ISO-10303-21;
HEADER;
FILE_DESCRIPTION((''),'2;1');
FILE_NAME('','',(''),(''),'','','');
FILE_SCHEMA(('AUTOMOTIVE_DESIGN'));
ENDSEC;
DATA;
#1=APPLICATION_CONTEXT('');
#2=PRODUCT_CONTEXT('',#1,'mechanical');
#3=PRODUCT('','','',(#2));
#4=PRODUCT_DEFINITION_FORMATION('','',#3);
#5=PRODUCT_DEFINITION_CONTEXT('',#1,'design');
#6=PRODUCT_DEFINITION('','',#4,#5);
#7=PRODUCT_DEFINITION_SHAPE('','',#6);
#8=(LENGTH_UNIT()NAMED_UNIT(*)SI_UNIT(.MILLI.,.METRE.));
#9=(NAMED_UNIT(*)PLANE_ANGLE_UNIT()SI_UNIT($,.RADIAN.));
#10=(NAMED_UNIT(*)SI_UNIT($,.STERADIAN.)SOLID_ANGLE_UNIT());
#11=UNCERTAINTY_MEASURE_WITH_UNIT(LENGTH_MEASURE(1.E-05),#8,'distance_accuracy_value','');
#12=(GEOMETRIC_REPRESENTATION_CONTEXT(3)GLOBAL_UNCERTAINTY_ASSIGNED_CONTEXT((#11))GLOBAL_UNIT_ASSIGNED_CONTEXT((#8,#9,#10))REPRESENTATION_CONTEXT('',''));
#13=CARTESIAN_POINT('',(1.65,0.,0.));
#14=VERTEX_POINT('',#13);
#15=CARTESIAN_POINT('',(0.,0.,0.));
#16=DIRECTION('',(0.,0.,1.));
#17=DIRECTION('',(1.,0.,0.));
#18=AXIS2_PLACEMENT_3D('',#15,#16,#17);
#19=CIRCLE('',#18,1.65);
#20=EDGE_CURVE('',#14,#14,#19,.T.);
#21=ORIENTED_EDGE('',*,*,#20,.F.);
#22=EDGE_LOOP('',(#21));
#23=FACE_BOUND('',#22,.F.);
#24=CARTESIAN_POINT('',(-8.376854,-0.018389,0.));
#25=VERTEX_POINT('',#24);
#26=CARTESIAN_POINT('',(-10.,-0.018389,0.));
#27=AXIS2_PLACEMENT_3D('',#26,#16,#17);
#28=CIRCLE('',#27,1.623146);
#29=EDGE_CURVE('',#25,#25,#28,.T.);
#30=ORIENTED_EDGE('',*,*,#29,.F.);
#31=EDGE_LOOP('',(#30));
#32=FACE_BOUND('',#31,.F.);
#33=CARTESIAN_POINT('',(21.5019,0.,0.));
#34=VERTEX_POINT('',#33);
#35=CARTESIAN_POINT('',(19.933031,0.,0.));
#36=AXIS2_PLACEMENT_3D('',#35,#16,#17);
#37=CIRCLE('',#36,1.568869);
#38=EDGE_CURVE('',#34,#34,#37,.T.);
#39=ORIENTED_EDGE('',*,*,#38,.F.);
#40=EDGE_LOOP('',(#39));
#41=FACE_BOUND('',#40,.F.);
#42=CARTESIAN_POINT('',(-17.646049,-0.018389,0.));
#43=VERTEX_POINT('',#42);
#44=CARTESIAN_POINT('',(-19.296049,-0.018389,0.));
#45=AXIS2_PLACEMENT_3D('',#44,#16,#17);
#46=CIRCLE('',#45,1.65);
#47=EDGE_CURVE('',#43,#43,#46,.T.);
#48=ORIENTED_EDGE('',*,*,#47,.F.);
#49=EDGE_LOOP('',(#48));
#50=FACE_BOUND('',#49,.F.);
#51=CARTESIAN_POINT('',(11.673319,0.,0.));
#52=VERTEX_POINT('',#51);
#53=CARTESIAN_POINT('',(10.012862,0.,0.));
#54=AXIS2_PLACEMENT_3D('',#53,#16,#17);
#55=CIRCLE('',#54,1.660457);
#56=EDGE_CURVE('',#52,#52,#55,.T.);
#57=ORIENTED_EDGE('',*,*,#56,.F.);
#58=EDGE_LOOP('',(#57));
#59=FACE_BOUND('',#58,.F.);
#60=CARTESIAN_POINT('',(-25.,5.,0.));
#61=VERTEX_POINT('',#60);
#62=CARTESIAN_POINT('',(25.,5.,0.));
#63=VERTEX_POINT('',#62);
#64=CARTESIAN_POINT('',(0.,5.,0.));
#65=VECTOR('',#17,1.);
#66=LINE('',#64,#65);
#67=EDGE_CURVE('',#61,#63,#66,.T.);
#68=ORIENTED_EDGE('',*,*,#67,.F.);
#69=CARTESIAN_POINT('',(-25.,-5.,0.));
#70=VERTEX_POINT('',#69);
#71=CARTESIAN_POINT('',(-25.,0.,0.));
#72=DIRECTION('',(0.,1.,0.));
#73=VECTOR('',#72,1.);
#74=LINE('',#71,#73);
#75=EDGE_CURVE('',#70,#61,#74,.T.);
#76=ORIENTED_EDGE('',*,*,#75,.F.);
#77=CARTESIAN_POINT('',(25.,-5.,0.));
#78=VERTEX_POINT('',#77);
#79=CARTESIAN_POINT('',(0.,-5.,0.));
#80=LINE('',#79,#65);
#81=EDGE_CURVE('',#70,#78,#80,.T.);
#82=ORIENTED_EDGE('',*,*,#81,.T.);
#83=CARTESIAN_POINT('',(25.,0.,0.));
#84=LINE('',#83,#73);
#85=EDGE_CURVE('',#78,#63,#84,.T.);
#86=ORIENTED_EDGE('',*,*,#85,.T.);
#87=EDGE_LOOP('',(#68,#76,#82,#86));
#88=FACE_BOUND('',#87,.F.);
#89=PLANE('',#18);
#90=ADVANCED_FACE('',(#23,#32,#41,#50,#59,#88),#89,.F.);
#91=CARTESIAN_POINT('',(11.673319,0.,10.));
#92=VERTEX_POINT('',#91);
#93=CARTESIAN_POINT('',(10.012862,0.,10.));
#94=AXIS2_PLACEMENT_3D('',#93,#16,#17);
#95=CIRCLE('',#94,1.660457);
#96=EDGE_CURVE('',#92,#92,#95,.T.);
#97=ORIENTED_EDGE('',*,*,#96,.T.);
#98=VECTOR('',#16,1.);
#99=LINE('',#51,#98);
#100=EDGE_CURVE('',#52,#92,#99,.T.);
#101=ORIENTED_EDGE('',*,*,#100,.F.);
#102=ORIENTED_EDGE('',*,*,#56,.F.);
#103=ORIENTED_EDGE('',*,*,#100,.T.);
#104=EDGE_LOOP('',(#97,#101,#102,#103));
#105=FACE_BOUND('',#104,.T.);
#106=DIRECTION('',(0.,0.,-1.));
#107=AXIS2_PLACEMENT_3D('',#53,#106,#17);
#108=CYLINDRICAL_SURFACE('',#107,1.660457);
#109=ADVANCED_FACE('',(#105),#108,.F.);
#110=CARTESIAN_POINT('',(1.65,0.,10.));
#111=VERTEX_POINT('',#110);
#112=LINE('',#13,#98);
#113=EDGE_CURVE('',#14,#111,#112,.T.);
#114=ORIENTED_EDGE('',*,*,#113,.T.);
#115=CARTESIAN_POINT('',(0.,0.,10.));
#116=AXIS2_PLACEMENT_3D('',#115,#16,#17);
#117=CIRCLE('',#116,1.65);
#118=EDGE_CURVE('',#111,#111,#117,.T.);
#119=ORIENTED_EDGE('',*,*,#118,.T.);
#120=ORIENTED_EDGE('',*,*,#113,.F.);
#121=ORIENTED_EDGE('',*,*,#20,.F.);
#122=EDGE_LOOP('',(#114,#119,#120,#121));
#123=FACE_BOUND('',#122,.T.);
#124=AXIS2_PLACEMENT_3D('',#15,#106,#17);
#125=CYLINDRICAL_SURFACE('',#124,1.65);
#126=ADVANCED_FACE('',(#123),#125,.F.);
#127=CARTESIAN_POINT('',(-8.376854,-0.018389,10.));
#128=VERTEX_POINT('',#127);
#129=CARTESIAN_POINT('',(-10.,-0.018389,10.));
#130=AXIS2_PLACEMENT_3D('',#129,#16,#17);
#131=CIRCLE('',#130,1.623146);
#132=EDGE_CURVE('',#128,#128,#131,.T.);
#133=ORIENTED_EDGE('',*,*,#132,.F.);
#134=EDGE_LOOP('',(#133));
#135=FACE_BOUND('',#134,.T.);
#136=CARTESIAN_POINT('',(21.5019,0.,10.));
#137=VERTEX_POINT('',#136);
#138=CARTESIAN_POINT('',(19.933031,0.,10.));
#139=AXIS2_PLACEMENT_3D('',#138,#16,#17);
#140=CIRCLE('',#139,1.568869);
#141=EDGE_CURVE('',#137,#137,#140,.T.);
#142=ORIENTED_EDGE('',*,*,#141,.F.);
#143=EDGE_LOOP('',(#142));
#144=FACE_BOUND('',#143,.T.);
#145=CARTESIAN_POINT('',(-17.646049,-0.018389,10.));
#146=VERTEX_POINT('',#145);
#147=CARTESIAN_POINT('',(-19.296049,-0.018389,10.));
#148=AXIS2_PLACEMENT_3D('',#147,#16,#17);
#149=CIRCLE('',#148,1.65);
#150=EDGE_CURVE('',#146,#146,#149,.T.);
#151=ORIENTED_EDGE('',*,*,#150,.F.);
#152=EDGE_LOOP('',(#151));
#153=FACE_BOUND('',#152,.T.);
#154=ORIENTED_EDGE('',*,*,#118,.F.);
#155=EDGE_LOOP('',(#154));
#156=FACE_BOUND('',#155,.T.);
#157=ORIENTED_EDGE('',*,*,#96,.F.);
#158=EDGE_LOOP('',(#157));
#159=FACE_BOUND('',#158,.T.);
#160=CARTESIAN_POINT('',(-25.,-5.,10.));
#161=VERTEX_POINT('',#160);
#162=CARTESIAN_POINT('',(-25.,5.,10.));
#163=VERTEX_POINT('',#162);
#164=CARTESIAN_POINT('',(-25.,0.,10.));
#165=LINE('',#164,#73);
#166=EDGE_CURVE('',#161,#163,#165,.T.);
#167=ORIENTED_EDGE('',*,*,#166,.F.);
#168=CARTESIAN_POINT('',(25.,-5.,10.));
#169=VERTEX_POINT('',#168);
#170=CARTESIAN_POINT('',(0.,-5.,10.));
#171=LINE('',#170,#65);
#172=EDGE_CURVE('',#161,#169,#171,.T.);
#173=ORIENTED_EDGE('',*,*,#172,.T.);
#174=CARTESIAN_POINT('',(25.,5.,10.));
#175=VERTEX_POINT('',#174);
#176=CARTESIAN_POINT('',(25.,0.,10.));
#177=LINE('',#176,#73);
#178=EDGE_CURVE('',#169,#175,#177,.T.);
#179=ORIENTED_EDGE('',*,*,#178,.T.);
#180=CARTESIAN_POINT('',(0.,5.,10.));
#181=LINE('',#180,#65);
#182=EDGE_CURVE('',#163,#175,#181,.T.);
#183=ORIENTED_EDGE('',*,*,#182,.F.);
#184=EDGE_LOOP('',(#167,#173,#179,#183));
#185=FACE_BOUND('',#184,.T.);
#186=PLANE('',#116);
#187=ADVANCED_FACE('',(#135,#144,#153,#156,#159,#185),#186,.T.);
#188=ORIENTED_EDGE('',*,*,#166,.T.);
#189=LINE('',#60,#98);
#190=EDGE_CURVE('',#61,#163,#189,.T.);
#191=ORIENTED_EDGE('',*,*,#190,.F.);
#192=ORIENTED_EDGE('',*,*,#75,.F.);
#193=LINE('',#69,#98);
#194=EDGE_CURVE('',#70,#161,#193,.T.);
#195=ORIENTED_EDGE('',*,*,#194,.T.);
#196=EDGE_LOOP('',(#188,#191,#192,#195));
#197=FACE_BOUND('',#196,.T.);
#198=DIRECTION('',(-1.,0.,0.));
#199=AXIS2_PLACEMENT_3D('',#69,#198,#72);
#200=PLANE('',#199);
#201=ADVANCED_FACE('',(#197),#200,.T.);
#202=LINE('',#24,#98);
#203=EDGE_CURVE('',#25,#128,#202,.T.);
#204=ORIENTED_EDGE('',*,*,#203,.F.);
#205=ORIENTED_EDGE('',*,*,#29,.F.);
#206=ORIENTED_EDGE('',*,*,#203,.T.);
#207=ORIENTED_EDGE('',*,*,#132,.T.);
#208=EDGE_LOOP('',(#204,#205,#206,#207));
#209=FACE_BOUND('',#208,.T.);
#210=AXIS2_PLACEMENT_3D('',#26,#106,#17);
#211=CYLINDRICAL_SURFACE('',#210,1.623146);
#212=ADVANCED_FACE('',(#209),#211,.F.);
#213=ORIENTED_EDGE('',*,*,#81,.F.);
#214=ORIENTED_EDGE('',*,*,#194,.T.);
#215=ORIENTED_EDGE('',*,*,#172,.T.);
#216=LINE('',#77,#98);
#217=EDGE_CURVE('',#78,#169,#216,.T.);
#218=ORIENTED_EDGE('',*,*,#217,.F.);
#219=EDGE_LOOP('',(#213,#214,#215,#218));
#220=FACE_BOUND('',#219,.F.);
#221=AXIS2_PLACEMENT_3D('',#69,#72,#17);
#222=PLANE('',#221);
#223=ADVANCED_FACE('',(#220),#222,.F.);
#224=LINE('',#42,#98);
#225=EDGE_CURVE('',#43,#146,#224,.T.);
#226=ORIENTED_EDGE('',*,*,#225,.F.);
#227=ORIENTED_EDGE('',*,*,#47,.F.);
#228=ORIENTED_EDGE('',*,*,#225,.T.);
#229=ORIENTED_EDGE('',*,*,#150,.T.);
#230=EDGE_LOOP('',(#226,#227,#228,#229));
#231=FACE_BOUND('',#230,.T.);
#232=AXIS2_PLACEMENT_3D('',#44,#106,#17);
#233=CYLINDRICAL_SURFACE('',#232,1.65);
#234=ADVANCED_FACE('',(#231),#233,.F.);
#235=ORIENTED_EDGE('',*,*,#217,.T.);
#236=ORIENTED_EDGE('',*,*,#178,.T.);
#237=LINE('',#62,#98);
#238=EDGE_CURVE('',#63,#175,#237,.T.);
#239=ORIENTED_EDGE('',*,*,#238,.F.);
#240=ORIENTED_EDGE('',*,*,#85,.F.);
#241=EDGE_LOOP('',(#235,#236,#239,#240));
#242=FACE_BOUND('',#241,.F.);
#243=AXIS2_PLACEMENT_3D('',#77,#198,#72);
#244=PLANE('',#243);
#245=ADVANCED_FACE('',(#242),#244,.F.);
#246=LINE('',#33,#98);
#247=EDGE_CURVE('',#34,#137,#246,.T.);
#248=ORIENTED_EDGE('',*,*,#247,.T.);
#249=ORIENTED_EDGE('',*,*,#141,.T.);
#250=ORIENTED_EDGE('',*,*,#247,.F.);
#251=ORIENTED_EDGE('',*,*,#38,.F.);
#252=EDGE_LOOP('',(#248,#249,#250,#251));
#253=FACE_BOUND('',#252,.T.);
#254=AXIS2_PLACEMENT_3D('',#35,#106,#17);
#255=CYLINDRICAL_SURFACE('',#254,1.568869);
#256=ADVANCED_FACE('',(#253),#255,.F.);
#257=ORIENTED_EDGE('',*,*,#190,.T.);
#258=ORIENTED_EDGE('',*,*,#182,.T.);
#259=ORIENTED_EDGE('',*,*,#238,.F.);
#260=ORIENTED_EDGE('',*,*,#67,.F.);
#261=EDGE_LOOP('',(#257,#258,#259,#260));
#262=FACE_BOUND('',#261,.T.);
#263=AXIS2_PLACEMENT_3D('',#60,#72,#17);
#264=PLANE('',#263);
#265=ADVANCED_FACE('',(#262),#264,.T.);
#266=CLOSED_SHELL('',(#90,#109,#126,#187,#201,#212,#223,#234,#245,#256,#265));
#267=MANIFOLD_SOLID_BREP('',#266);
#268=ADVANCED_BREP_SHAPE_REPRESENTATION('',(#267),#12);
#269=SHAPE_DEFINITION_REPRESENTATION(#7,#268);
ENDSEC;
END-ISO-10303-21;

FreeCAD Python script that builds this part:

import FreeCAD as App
import Part
import Sketcher
from FreeCAD import Vector

doc = App.newDocument("Part")
body = doc.addObject("PartDesign::Body", "Body")

sketch1 = body.newObject("Sketcher::SketchObject", "Sketch")
sketch1.AttachmentSupport = (doc.getObject("XY_Plane"), [""])
sketch1.MapMode = "FlatFace"
sketch1.addGeometry([
    Part.LineSegment(Vector(-25, 5, 0), Vector(-25, -5, 0)),
    Part.LineSegment(Vector(-25, -5, 0), Vector(25, -5, 0)),
    Part.LineSegment(Vector(25, -5, 0), Vector(25, 5, 0)),
    Part.LineSegment(Vector(25, 5, 0), Vector(-25, 5, 0)),
    Part.Circle(Vector(-19.3, 0, 0), Vector(0, 0, 1), 1.6),
    Part.Circle(Vector(-10, 0, 0), Vector(0, 0, 1), 1.6),
    Part.Circle(Vector(0, 0, 0), Vector(0, 0, 1), 1.6),
    Part.Circle(Vector(10, 0, 0), Vector(0, 0, 1), 1.7),
    Part.Circle(Vector(19.9, 0, 0), Vector(0, 0, 1), 1.6),
], False)
sketch1.addConstraint([
    Sketcher.Constraint("Coincident", 0, 2, 1, 1),
    Sketcher.Constraint("Coincident", 1, 2, 2, 1),
    Sketcher.Constraint("Coincident", 2, 2, 3, 1),
    Sketcher.Constraint("Coincident", 3, 2, 0, 1),
    Sketcher.Constraint("Vertical", 0),
    Sketcher.Constraint("Horizontal", 1),
    Sketcher.Constraint("Vertical", 2),
    Sketcher.Constraint("Horizontal", 3),
    Sketcher.Constraint("Coincident", 6, 3, -1, 1),
    Sketcher.Constraint("Equal", 4, 6),
    Sketcher.Constraint("Symmetric", 0, 2, 2, 2, -1, 1),
    Sketcher.Constraint("PointOnObject", 7, 3, -1),
    Sketcher.Constraint("PointOnObject", 8, 3, -1),
    Sketcher.Constraint("Horizontal", 4, 3, 5, 3),
    Sketcher.Constraint("Diameter", 4, 3.3),
    Sketcher.Constraint("DistanceX", 1, 1, 1, 2, 50.0),
    Sketcher.Constraint("DistanceY", 0, 2, 0, 1, 10.0),
    Sketcher.Constraint("DistanceX", 5, 3, -1, 1, 10.0),
    Sketcher.Constraint("Diameter", 5, 3.246292),
    Sketcher.Constraint("Diameter", 8, 3.137738),
    Sketcher.Constraint("Diameter", 7, 3.320914),
    Sketcher.Constraint("DistanceX", 4, 3, -1, 1, 19.296049),
    Sketcher.Constraint("DistanceY", 4, 3, -1, 1, 0.018389),
    Sketcher.Constraint("DistanceX", -1, 1, 8, 3, 19.933031),
    Sketcher.Constraint("DistanceX", 5, 3, 7, 3, 20.012862),
])
pad1 = body.newObject("PartDesign::Pad", "Pad")
pad1.Profile = sketch1
pad1.Length = 10

doc.recompute()
